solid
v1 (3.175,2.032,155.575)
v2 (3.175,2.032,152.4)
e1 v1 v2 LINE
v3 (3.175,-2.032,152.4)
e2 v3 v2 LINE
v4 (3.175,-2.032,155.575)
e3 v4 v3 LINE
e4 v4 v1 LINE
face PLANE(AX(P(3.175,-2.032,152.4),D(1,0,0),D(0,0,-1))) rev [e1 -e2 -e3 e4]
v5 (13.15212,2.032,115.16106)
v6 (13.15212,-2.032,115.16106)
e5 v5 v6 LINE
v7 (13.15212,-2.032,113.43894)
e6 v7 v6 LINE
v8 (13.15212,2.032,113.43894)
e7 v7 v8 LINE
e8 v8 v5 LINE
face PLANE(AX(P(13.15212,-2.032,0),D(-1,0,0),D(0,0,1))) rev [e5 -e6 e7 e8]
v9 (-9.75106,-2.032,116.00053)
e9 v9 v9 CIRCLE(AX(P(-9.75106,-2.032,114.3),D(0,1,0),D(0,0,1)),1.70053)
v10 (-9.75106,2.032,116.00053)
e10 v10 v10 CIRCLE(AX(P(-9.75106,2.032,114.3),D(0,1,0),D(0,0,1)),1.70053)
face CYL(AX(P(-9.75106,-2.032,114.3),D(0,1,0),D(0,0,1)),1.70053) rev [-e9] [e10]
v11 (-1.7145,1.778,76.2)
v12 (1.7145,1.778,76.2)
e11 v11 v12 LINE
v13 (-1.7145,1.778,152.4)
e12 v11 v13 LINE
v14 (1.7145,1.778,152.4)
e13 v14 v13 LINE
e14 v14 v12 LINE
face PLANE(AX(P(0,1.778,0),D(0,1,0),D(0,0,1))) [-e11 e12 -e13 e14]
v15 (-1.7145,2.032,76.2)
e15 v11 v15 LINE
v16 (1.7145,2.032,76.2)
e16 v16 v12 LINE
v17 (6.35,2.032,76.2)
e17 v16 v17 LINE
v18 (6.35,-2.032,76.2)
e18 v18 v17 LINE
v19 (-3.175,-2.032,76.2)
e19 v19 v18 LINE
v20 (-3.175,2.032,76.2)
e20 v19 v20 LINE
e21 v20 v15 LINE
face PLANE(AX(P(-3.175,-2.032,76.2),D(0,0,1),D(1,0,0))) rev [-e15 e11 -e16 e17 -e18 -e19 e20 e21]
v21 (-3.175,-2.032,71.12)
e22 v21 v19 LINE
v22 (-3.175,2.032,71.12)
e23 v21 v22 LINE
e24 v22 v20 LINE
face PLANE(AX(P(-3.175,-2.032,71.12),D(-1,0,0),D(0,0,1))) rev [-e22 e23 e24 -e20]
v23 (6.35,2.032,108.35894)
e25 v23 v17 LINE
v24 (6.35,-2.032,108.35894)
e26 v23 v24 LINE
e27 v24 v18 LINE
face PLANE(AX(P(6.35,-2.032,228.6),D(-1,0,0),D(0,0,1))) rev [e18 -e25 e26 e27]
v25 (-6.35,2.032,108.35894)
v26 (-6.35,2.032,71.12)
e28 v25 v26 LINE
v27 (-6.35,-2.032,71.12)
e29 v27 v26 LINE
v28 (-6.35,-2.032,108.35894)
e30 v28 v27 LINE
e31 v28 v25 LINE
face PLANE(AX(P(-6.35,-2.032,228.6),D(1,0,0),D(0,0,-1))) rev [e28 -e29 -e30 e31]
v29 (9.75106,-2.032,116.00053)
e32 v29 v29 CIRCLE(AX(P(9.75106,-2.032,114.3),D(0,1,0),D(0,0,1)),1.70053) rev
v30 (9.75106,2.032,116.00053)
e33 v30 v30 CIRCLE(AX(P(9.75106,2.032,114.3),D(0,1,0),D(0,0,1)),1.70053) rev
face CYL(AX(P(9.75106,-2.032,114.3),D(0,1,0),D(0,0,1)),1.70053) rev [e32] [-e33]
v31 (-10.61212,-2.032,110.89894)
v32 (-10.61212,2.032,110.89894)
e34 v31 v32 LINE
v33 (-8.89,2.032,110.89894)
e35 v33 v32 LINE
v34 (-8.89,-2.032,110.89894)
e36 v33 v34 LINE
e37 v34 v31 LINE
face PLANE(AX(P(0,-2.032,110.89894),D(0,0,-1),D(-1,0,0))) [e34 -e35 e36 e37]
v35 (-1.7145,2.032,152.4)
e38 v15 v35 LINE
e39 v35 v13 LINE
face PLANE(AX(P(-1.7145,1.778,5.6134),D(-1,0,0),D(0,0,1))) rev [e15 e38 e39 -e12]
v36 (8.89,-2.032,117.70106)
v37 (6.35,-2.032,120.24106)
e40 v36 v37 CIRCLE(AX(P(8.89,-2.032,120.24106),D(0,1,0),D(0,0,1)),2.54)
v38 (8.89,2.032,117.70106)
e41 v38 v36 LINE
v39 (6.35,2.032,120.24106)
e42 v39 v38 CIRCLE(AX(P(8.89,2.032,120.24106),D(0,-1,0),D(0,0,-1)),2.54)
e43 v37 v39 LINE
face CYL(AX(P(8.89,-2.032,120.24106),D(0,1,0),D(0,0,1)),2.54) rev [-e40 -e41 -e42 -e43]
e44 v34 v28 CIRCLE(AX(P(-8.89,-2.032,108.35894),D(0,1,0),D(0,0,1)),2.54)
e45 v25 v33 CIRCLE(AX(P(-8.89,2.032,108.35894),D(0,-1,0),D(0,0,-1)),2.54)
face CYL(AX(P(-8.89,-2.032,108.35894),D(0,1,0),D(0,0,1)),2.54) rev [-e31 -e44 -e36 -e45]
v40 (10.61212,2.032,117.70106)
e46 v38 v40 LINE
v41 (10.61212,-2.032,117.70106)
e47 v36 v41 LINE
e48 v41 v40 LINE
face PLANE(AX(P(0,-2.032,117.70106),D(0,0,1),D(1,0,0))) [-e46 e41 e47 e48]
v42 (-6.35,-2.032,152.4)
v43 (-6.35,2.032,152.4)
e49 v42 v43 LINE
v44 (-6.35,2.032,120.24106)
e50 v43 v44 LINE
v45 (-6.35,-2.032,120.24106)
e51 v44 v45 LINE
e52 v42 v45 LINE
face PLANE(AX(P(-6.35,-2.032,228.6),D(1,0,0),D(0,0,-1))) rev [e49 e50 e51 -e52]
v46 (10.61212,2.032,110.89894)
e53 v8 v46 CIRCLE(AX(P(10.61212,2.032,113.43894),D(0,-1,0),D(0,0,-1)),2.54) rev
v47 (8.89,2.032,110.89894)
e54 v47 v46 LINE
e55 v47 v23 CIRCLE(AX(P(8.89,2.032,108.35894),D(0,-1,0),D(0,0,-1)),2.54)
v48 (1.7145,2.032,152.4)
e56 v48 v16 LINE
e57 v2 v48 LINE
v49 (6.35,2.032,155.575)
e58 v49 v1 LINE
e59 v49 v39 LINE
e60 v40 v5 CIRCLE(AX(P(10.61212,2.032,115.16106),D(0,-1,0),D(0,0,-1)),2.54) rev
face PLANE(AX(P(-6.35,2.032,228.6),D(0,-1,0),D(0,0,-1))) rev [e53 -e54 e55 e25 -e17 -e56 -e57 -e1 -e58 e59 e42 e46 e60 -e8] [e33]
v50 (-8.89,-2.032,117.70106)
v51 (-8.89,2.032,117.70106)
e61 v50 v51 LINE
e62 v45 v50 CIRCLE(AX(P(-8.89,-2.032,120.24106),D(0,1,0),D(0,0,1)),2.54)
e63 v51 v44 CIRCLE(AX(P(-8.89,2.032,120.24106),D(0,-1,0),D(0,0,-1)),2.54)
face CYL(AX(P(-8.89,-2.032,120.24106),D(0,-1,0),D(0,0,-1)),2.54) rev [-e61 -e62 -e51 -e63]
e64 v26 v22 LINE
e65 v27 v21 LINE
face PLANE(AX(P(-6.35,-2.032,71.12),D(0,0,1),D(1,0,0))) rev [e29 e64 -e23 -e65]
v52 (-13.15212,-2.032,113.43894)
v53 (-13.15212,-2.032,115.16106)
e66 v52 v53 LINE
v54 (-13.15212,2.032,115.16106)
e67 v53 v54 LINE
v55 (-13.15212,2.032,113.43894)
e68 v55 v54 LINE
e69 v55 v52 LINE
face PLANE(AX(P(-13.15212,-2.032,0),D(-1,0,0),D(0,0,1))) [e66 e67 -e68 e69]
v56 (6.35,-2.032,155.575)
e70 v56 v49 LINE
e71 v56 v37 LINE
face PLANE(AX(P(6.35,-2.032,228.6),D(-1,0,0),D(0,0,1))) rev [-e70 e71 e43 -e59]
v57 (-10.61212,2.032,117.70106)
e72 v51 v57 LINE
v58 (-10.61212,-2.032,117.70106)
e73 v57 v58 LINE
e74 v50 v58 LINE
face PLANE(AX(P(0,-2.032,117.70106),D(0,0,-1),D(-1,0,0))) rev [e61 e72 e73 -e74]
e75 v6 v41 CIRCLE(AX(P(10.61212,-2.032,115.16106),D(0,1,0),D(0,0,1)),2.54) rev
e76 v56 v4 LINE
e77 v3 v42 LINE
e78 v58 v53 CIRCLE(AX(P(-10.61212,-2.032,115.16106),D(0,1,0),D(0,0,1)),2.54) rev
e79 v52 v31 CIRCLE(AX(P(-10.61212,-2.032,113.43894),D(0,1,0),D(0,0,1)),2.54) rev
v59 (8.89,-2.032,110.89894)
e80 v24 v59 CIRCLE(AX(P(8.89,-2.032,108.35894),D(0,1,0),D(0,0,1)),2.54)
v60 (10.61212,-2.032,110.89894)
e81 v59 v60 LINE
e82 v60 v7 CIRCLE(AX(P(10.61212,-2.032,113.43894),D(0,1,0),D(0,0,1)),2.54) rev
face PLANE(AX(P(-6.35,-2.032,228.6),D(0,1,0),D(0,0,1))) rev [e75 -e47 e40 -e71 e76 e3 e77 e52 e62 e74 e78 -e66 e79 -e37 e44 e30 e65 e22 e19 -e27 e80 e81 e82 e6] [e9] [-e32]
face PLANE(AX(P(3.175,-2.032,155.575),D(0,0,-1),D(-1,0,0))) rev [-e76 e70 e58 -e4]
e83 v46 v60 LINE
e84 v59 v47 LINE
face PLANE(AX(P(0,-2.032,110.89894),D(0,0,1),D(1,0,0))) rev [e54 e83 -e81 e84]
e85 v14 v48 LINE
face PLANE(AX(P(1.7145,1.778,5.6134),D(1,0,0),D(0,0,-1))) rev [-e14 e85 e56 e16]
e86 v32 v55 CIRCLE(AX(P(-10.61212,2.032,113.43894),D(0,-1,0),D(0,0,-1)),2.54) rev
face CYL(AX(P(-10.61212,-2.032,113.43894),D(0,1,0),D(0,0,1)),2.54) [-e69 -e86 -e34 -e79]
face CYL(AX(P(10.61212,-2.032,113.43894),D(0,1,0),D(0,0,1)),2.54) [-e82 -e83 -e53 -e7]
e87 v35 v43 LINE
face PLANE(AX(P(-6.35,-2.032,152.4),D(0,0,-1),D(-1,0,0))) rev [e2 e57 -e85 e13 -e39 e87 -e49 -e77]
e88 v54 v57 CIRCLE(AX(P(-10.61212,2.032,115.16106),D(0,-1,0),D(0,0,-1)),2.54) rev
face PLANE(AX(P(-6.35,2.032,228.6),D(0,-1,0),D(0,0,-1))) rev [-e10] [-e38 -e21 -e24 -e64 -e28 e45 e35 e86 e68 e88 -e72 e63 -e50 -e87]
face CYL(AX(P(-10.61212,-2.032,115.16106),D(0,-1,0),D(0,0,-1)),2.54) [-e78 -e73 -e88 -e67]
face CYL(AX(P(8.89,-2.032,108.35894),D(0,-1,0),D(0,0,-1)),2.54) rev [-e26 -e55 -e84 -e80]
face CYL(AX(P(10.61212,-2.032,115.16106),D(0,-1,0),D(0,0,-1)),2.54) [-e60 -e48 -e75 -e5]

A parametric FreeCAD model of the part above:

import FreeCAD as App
import Part
import Sketcher
from FreeCAD import Vector
Q = App.Units.Quantity


def edges_at(feature, points):
    """Names of the edges that pass closest to the given points."""
    edges = feature.Shape.Edges
    near = lambda p: min(range(len(edges)), key=lambda i: edges[i].distToShape(Part.Vertex(*p))[0])
    return sorted({f"Edge{near(p) + 1}" for p in points})

doc = App.newDocument("Part")
body = doc.addObject("PartDesign::Body", "Body")

# Sketch on XY plane
sketch1 = body.newObject("Sketcher::SketchObject", "Sketch")
sketch1.AttachmentSupport = (doc.getObject("XY_Plane"), [""])
sketch1.MapMode = "FlatFace"
sketch1.addGeometry([
    Part.LineSegment(Vector(-6.3, 2, 0), Vector(-6.3, -2, 0)),
    Part.LineSegment(Vector(-6.3, -2, 0), Vector(6.3, -2, 0)),
    Part.LineSegment(Vector(6.3, -2, 0), Vector(6.3, 2, 0)),
    Part.LineSegment(Vector(6.3, 2, 0), Vector(-6.3, 2, 0)),
], False)
sketch1.addConstraint([
    Sketcher.Constraint("Coincident", 0, 2, 1, 1),
    Sketcher.Constraint("Coincident", 1, 2, 2, 1),
    Sketcher.Constraint("Coincident", 2, 2, 3, 1),
    Sketcher.Constraint("Coincident", 3, 2, 0, 1),
    Sketcher.Constraint("Vertical", 0),
    Sketcher.Constraint("Horizontal", 1),
    Sketcher.Constraint("Vertical", 2),
    Sketcher.Constraint("Horizontal", 3),
    Sketcher.Constraint("Symmetric", 0, 2, 2, 2, -1, 1),
    Sketcher.Constraint("DistanceX", 1, 1, 1, 2, Q("0.5 in")),
    Sketcher.Constraint("DistanceY", 0, 2, 0, 1, Q("0.16 in")),
])
pad1 = body.newObject("PartDesign::Pad", "Pad")
pad1.Profile = sketch1
pad1.Length = Q("9 in")

# Sketch on XZ plane
sketch2 = body.newObject("Sketcher::SketchObject", "Sketch001")
sketch2.AttachmentSupport = (doc.getObject("XZ_Plane"), [""])
sketch2.MapMode = "FlatFace"
sketch2.AttachmentOffset = App.Placement(Vector(0, 0, -0.08 * 25.4), App.Rotation())
sketch2.addGeometry([
    Part.LineSegment(Vector(-1.7, 5.6, 0), Vector(-1.7, 223, 0)),
    Part.LineSegment(Vector(-1.7, 223, 0), Vector(1.7, 223, 0)),
    Part.LineSegment(Vector(1.7, 223, 0), Vector(1.7, 5.6, 0)),
    Part.LineSegment(Vector(1.7, 5.6, 0), Vector(-1.7, 5.6, 0)),
], False)
sketch2.addConstraint([
    Sketcher.Constraint("Coincident", 0, 2, 1, 1),
    Sketcher.Constraint("Coincident", 1, 2, 2, 1),
    Sketcher.Constraint("Coincident", 2, 2, 3, 1),
    Sketcher.Constraint("Coincident", 3, 2, 0, 1),
    Sketcher.Constraint("Vertical", 0),
    Sketcher.Constraint("Horizontal", 1),
    Sketcher.Constraint("Vertical", 2),
    Sketcher.Constraint("Horizontal", 3),
    Sketcher.Constraint("DistanceX", 1, 1, 1, 2, Q("0.135 in")),
    Sketcher.Constraint("DistanceY", 0, 1, 0, 2, Q("8.558 in")),
    Sketcher.Constraint("DistanceY", -1, 1, 0, 2, Q("8.779 in")),
    Sketcher.Constraint("DistanceX", 0, 2, -1, 1, Q("0.0675 in")),
])
pocket1 = body.newObject("PartDesign::Pocket", "Pocket")
pocket1.Profile = sketch2
pocket1.Length = Q("0.01 in")
pocket1.Reversed = True

# Sketch on XZ plane
sketch3 = body.newObject("Sketcher::SketchObject", "Sketch002")
sketch3.AttachmentSupport = (doc.getObject("XZ_Plane"), [""])
sketch3.MapMode = "FlatFace"
sketch3.AttachmentOffset = App.Placement(Vector(0, 0, -0.08 * 25.4), App.Rotation())
sketch3.addGeometry([
    Part.LineSegment(Vector(-6.3, 223.5, 0), Vector(-6.3, 228.6, 0)),
    Part.LineSegment(Vector(-6.3, 228.6, 0), Vector(-5.8, 228.6, 0)),
    Part.LineSegment(Vector(-5.8, 228.6, 0), Vector(-5.8, 223.5, 0)),
    Part.LineSegment(Vector(-5.8, 223.5, 0), Vector(-6.3, 223.5, 0)),
], False)
sketch3.addConstraint([
    Sketcher.Constraint("Coincident", 0, 2, 1, 1),
    Sketcher.Constraint("Coincident", 1, 2, 2, 1),
    Sketcher.Constraint("Coincident", 2, 2, 3, 1),
    Sketcher.Constraint("Coincident", 3, 2, 0, 1),
    Sketcher.Constraint("Vertical", 0),
    Sketcher.Constraint("Horizontal", 1),
    Sketcher.Constraint("Vertical", 2),
    Sketcher.Constraint("Horizontal", 3),
    Sketcher.Constraint("DistanceY", 0, 1, 0, 2, Q("0.2 in")),
    Sketcher.Constraint("DistanceY", -1, 1, 0, 2, Q("9 in")),
    Sketcher.Constraint("DistanceX", 1, 1, 1, 2, Q("0.02 in")),
    Sketcher.Constraint("DistanceX", 0, 2, -1, 1, Q("0.25 in")),
])
pocket2 = body.newObject("PartDesign::Pocket", "Pocket001")
pocket2.Profile = sketch3
pocket2.Type = "ThroughAll"
pocket2.Reversed = True
doc.recompute()

datumplane = body.newObject("PartDesign::Plane", "DatumPlane")
datumplane.AttachmentSupport = (doc.getObject("XY_Plane"), [""])
datumplane.MapMode = "FlatFace"
datumplane.AttachmentOffset = App.Placement(Vector(0, 0, 4.5 * 25.4), App.Rotation())
mirrored = body.newObject("PartDesign::Mirrored", "Mirrored")
mirrored.Originals = [pocket2]
mirrored.MirrorPlane = (datumplane, [""])
body.Tip = mirrored
doc.recompute()

mirrored2 = body.newObject("PartDesign::Mirrored", "Mirrored001")
mirrored2.Originals = [pocket2]
mirrored2.MirrorPlane = (doc.getObject("YZ_Plane"), [""])
body.Tip = mirrored2

# Sketch on XZ plane
sketch4 = body.newObject("Sketcher::SketchObject", "Sketch003")
sketch4.AttachmentSupport = (doc.getObject("XZ_Plane"), [""])
sketch4.MapMode = "FlatFace"
sketch4.AttachmentOffset = App.Placement(Vector(0, 0, -0.08 * 25.4), App.Rotation())
sketch4.addGeometry([
    Part.LineSegment(Vector(6.3, 5.1, 0), Vector(6.3, 0, 0)),
    Part.LineSegment(Vector(6.3, 0, 0), Vector(5.8, 0, 0)),
    Part.LineSegment(Vector(5.8, 0, 0), Vector(5.8, 5.1, 0)),
    Part.LineSegment(Vector(5.8, 5.1, 0), Vector(6.3, 5.1, 0)),
], False)
sketch4.addConstraint([
    Sketcher.Constraint("Coincident", 0, 2, 1, 1),
    Sketcher.Constraint("Coincident", 1, 2, 2, 1),
    Sketcher.Constraint("Coincident", 2, 2, 3, 1),
    Sketcher.Constraint("Coincident", 3, 2, 0, 1),
    Sketcher.Constraint("Vertical", 0),
    Sketcher.Constraint("Horizontal", 1),
    Sketcher.Constraint("Vertical", 2),
    Sketcher.Constraint("Horizontal", 3),
    Sketcher.Constraint("PointOnObject", 0, 2, -1),
    Sketcher.Constraint("DistanceY", 0, 2, 0, 1, Q("0.2 in")),
    Sketcher.Constraint("DistanceX", 1, 2, 1, 1, Q("0.02 in")),
    Sketcher.Constraint("DistanceX", -1, 1, 0, 2, Q("0.25 in")),
])
pocket3 = body.newObject("PartDesign::Pocket", "Pocket002")
pocket3.Profile = sketch4
pocket3.Type = "ThroughAll"
pocket3.Reversed = True

# Sketch on XZ plane
sketch5 = body.newObject("Sketcher::SketchObject", "Sketch004")
sketch5.AttachmentSupport = (doc.getObject("XZ_Plane"), [""])
sketch5.MapMode = "FlatFace"
sketch5.AttachmentOffset = App.Placement(Vector(0, 0, -0.08 * 25.4), App.Rotation())
sketch5.addGeometry([
    Part.LineSegment(Vector(-5.8, 225.4, 0), Vector(-5.8, 228.6, 0)),
    Part.LineSegment(Vector(-5.8, 228.6, 0), Vector(-2.7, 228.6, 0)),
    Part.LineSegment(Vector(-2.7, 228.6, 0), Vector(-2.7, 225.4, 0)),
    Part.LineSegment(Vector(-2.7, 225.4, 0), Vector(-5.8, 225.4, 0)),
], False)
sketch5.addConstraint([
    Sketcher.Constraint("Coincident", 0, 2, 1, 1),
    Sketcher.Constraint("Coincident", 1, 2, 2, 1),
    Sketcher.Constraint("Coincident", 2, 2, 3, 1),
    Sketcher.Constraint("Coincident", 3, 2, 0, 1),
    Sketcher.Constraint("Vertical", 0),
    Sketcher.Constraint("Horizontal", 1),
    Sketcher.Constraint("Vertical", 2),
    Sketcher.Constraint("Horizontal", 3),
    Sketcher.Constraint("Equal", 3, 0),
    Sketcher.Constraint("DistanceY", -1, 1, 0, 2, Q("9 in")),
    Sketcher.Constraint("DistanceX", 1, 1, 1, 2, Q("0.125 in")),
    Sketcher.Constraint("DistanceX", 0, 2, -1, 1, Q("0.23 in")),
])
pocket4 = body.newObject("PartDesign::Pocket", "Pocket003")
pocket4.Profile = sketch5
pocket4.Type = "ThroughAll"
pocket4.Reversed = True

# Sketch on XZ plane
sketch6 = body.newObject("Sketcher::SketchObject", "Sketch005")
sketch6.AttachmentSupport = (doc.getObject("XZ_Plane"), [""])
sketch6.MapMode = "FlatFace"
sketch6.AttachmentOffset = App.Placement(Vector(0, 0, -0.08 * 25.4), App.Rotation())
sketch6.addGeometry([
    Part.LineSegment(Vector(6.3, 0, 0), Vector(-6.3, 0, 0)),  # 0
    Part.LineSegment(Vector(-6.3, 0, 0), Vector(-6.3, 71.1, 0)),  # 1
    Part.LineSegment(Vector(-6.3, 71.1, 0), Vector(-3.2, 71.1, 0)),  # 2
    Part.LineSegment(Vector(-3.2, 71.1, 0), Vector(-3.2, 76.2, 0)),  # 3
    Part.LineSegment(Vector(-3.2, 76.2, 0), Vector(6.3, 76.2, 0)),  # 4
    Part.LineSegment(Vector(6.3, 76.2, 0), Vector(6.3, 0, 0)),  # 5
    Part.LineSegment(Vector(3.2, 152.4, 0), Vector(-6.3, 152.4, 0)),  # 6
    Part.LineSegment(Vector(-6.3, 152.4, 0), Vector(-6.3, 228.6, 0)),  # 7
    Part.LineSegment(Vector(-6.3, 228.6, 0), Vector(6.3, 228.6, 0)),  # 8
    Part.LineSegment(Vector(6.3, 228.6, 0), Vector(6.3, 155.6, 0)),  # 9
    Part.LineSegment(Vector(6.3, 155.6, 0), Vector(3.2, 155.6, 0)),  # 10
    Part.LineSegment(Vector(3.2, 155.6, 0), Vector(3.2, 152.4, 0)),  # 11
], False)
sketch6.addConstraint([
    Sketcher.Constraint("Coincident", 0, 2, 1, 1),
    Sketcher.Constraint("Coincident", 1, 2, 2, 1),
    Sketcher.Constraint("Coincident", 2, 2, 3, 1),
    Sketcher.Constraint("Coincident", 3, 2, 4, 1),
    Sketcher.Constraint("Coincident", 4, 2, 5, 1),
    Sketcher.Constraint("Coincident", 5, 2, 0, 1),
    Sketcher.Constraint("Coincident", 6, 2, 7, 1),
    Sketcher.Constraint("Coincident", 7, 2, 8, 1),
    Sketcher.Constraint("Coincident", 8, 2, 9, 1),
    Sketcher.Constraint("Coincident", 9, 2, 10, 1),
    Sketcher.Constraint("Coincident", 10, 2, 11, 1),
    Sketcher.Constraint("Coincident", 11, 2, 6, 1),
    Sketcher.Constraint("Horizontal", 0),
    Sketcher.Constraint("Vertical", 1),
    Sketcher.Constraint("Horizontal", 2),
    Sketcher.Constraint("Vertical", 3),
    Sketcher.Constraint("Horizontal", 4),
    Sketcher.Constraint("Vertical", 5),
    Sketcher.Constraint("Horizontal", 6),
    Sketcher.Constraint("Vertical", 7),
    Sketcher.Constraint("Horizontal", 8),
    Sketcher.Constraint("Vertical", 9),
    Sketcher.Constraint("Horizontal", 10),
    Sketcher.Constraint("Vertical", 11),
    Sketcher.Constraint("Symmetric", 0, 2, 5, 2, -1, 1),
    Sketcher.Constraint("Vertical", 1, 2, 6, 2),
    Sketcher.Constraint("Vertical", 5, 2, 8, 2),
    Sketcher.Constraint("Equal", 4, 6),
    Sketcher.Constraint("Equal", 5, 7),
    Sketcher.Constraint("Equal", 10, 11),
    Sketcher.Constraint("DistanceY", 5, 2, 5, 1, Q("3 in")),
    Sketcher.Constraint("DistanceX", 0, 2, 0, 1, Q("0.5 in")),
    Sketcher.Constraint("DistanceY", 1, 1, 1, 2, Q("2.8 in")),
    Sketcher.Constraint("DistanceY", -1, 1, 6, 2, Q("6 in")),
    Sketcher.Constraint("DistanceX", 2, 1, 2, 2, Q("0.125 in")),
])
pocket5 = body.newObject("PartDesign::Pocket", "Pocket004")
pocket5.Profile = sketch6
pocket5.Type = "ThroughAll"
pocket5.Reversed = True

# Sketch on XZ plane
sketch7 = body.newObject("Sketcher::SketchObject", "Sketch006")
sketch7.AttachmentSupport = (doc.getObject("XZ_Plane"), [""])
sketch7.MapMode = "FlatFace"
sketch7.AttachmentOffset = App.Placement(Vector(0, 0, -0.08 * 25.4), App.Rotation())
sketch7.addGeometry([
    Part.LineSegment(Vector(-13.2, 110.9, 0), Vector(-13.2, 117.7, 0)),  # 0
    Part.LineSegment(Vector(-13.2, 117.7, 0), Vector(-6.3, 117.7, 0)),  # 1
    Part.LineSegment(Vector(-6.3, 117.7, 0), Vector(-6.3, 110.9, 0)),  # 2
    Part.LineSegment(Vector(-6.3, 110.9, 0), Vector(-13.2, 110.9, 0)),  # 3
    Part.Circle(Vector(-9.8, 114.3, 0), Vector(0, 0, 1), 1.7),  # 4
    Part.LineSegment(Vector(6.3, 110.9, 0), Vector(6.3, 117.7, 0)),  # 5
    Part.LineSegment(Vector(6.3, 117.7, 0), Vector(13.2, 117.7, 0)),  # 6
    Part.LineSegment(Vector(13.2, 117.7, 0), Vector(13.2, 110.9, 0)),  # 7
    Part.LineSegment(Vector(13.2, 110.9, 0), Vector(6.3, 110.9, 0)),  # 8
    Part.Circle(Vector(9.8, 114.3, 0), Vector(0, 0, 1), 1.7),  # 9
], False)
sketch7.addConstraint([
    Sketcher.Constraint("Coincident", 0, 2, 1, 1),
    Sketcher.Constraint("Coincident", 1, 2, 2, 1),
    Sketcher.Constraint("Coincident", 2, 2, 3, 1),
    Sketcher.Constraint("Coincident", 3, 2, 0, 1),
    Sketcher.Constraint("Coincident", 5, 2, 6, 1),
    Sketcher.Constraint("Coincident", 6, 2, 7, 1),
    Sketcher.Constraint("Coincident", 7, 2, 8, 1),
    Sketcher.Constraint("Coincident", 8, 2, 5, 1),
    Sketcher.Constraint("Vertical", 0),
    Sketcher.Constraint("Horizontal", 1),
    Sketcher.Constraint("Vertical", 2),
    Sketcher.Constraint("Horizontal", 3),
    Sketcher.Constraint("Vertical", 5),
    Sketcher.Constraint("Horizontal", 6),
    Sketcher.Constraint("Vertical", 7),
    Sketcher.Constraint("Horizontal", 8),
    Sketcher.Constraint("Equal", 4, 9),
    Sketcher.Constraint("Symmetric", 4, 3, 9, 3, -2),
    Sketcher.Constraint("Symmetric", 1, 2, 5, 2, -2),
    Sketcher.Constraint("Symmetric", 3, 2, 7, 2, -2),
    Sketcher.Constraint("Equal", 8, 0),
    Sketcher.Constraint("Diameter", 4, Q("0.1339 in")),
    Sketcher.Constraint("DistanceY", -1, 1, 4, 3, Q("4.5 in")),
    Sketcher.Constraint("DistanceX", 1, 2, 5, 2, Q("0.5 in")),
    Sketcher.Constraint("DistanceX", 1, 1, 1, 2, Q("0.2678 in")),
    Sketcher.Constraint("DistanceX", 4, 3, -1, 1, Q("0.3839 in")),
    Sketcher.Constraint("DistanceY", -1, 1, 0, 2, Q("4.6339 in")),
])
pad2 = body.newObject("PartDesign::Pad", "Pad001")
pad2.Profile = sketch7
pad2.Length = Q("0.16 in")
doc.recompute()

fillet = body.newObject("PartDesign::Fillet", "Fillet")
fillet.Base = (pad2, edges_at(pad2, [
    (6.35, 0, 110.899),
    (13.152, 0, 110.899),
    (13.152, 0, 117.701),
    (6.35, 0, 117.701),
    (-6.35, 0, 117.701),
    (-13.152, 0, 117.701),
    (-13.152, 0, 110.899),
    (-6.35, 0, 110.899),
]))
fillet.Radius = Q("0.1 in")

doc.recompute()
